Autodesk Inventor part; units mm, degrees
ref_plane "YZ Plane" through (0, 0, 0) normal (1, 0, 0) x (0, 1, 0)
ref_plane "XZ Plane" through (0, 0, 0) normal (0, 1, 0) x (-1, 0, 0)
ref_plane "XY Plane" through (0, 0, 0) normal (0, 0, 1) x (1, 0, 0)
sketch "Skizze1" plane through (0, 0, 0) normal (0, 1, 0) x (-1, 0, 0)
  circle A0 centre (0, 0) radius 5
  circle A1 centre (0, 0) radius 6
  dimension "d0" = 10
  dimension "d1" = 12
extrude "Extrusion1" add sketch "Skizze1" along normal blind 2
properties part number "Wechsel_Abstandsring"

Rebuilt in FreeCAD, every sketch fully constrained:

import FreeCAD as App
import Part
import Sketcher

V = App.Vector
Q = App.Units.Quantity

doc = App.newDocument("Part")
body = doc.addObject("PartDesign::Body", "Body")

# Sketch on XZ plane
sketch1 = body.newObject("Sketcher::SketchObject", "Sketch")
sketch1.AttachmentSupport = (doc.getObject("XZ_Plane"), [""])
sketch1.MapMode = "FlatFace"
sketch1.addGeometry([
    Part.Circle(V(0, 0, 0), V(0, 0, 1), 6),
    Part.Circle(V(0, 0, 0), V(0, 0, 1), 5),
], False)
sketch1.addConstraint([
    Sketcher.Constraint("Coincident", 0, 3, -1, 1),
    Sketcher.Constraint("Coincident", 1, 3, -1, 1),
    Sketcher.Constraint("Diameter", 0, Q("12 mm")),
    Sketcher.Constraint("Diameter", 1, Q("10 mm")),
])
pad1 = body.newObject("PartDesign::Pad", "Pad")
pad1.Profile = sketch1
pad1.Length = 2
pad1.Reversed = True

doc.recompute()
